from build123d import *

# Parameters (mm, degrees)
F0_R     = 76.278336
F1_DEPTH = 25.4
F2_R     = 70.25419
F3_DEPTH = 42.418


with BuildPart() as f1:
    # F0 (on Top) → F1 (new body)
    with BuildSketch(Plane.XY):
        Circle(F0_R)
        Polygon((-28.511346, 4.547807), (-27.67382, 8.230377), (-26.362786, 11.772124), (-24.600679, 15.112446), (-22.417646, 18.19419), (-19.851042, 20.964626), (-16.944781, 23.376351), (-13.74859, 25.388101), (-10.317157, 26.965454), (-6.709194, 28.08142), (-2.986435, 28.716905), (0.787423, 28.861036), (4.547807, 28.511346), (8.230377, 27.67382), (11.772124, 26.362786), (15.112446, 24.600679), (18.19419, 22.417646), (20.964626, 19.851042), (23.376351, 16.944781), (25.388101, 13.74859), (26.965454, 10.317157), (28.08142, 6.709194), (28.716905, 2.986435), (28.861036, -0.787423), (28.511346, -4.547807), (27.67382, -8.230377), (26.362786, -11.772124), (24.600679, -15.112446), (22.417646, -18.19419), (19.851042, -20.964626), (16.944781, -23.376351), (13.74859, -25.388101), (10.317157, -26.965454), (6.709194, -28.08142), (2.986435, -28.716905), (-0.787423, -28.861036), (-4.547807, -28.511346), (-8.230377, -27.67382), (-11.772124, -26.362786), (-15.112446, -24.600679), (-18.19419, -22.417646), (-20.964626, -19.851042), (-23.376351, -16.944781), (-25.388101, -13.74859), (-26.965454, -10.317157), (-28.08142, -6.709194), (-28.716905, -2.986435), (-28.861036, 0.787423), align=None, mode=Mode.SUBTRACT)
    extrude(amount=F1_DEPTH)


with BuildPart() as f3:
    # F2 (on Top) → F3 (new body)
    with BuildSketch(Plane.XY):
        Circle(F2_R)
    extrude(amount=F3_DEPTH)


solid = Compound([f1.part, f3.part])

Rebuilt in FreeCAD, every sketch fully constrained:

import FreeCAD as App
import Part
import Sketcher
from FreeCAD import Vector
Q = App.Units.Quantity

doc = App.newDocument("Part")
body = doc.addObject("PartDesign::Body", "Body")

# Sketch on XY plane
sketch1 = body.newObject("Sketcher::SketchObject", "Sketch")
sketch1.AttachmentSupport = (doc.getObject("XY_Plane"), [""])
sketch1.MapMode = "FlatFace"
sketch1.addGeometry(Part.Circle(Vector(0, 0, 0), Vector(0, 0, 1), 76.278336), False)
sketch1.addGeometry(Part.LineSegment(Vector(-28.861036, 0.787423, 0), Vector(-28.511346, 4.547807, 0)), False)
sketch1.addGeometry(Part.LineSegment(Vector(-28.511346, 4.547807, 0), Vector(-27.67382, 8.230377, 0)), False)
sketch1.addGeometry(Part.LineSegment(Vector(-27.67382, 8.230377, 0), Vector(-26.362786, 11.772124, 0)), False)
sketch1.addGeometry(Part.LineSegment(Vector(-26.362786, 11.772124, 0), Vector(-24.600679, 15.112446, 0)), False)
sketch1.addGeometry(Part.LineSegment(Vector(-24.600679, 15.112446, 0), Vector(-22.417646, 18.19419, 0)), False)
sketch1.addGeometry(Part.LineSegment(Vector(-22.417646, 18.19419, 0), Vector(-19.851042, 20.964626, 0)), False)
sketch1.addGeometry(Part.LineSegment(Vector(-19.851042, 20.964626, 0), Vector(-16.944781, 23.376351, 0)), False)
sketch1.addGeometry(Part.LineSegment(Vector(-16.944781, 23.376351, 0), Vector(-13.74859, 25.388101, 0)), False)
sketch1.addGeometry(Part.LineSegment(Vector(-13.74859, 25.388101, 0), Vector(-10.317157, 26.965454, 0)), False)
sketch1.addGeometry(Part.LineSegment(Vector(-10.317157, 26.965454, 0), Vector(-6.709194, 28.08142, 0)), False)
sketch1.addGeometry(Part.LineSegment(Vector(-6.709194, 28.08142, 0), Vector(-2.986435, 28.716905, 0)), False)
sketch1.addGeometry(Part.LineSegment(Vector(-2.986435, 28.716905, 0), Vector(0.787423, 28.861036, 0)), False)
sketch1.addGeometry(Part.LineSegment(Vector(0.787423, 28.861036, 0), Vector(4.547807, 28.511346, 0)), False)
sketch1.addGeometry(Part.LineSegment(Vector(4.547807, 28.511346, 0), Vector(8.230377, 27.67382, 0)), False)
sketch1.addGeometry(Part.LineSegment(Vector(8.230377, 27.67382, 0), Vector(11.772124, 26.362786, 0)), False)
sketch1.addGeometry(Part.LineSegment(Vector(11.772124, 26.362786, 0), Vector(15.112446, 24.600679, 0)), False)
sketch1.addGeometry(Part.LineSegment(Vector(15.112446, 24.600679, 0), Vector(18.19419, 22.417646, 0)), False)
sketch1.addGeometry(Part.LineSegment(Vector(18.19419, 22.417646, 0), Vector(20.964626, 19.851042, 0)), False)
sketch1.addGeometry(Part.LineSegment(Vector(20.964626, 19.851042, 0), Vector(23.376351, 16.944781, 0)), False)
sketch1.addGeometry(Part.LineSegment(Vector(23.376351, 16.944781, 0), Vector(25.388101, 13.74859, 0)), False)
sketch1.addGeometry(Part.LineSegment(Vector(25.388101, 13.74859, 0), Vector(26.965454, 10.317157, 0)), False)
sketch1.addGeometry(Part.LineSegment(Vector(26.965454, 10.317157, 0), Vector(28.08142, 6.709194, 0)), False)
sketch1.addGeometry(Part.LineSegment(Vector(28.08142, 6.709194, 0), Vector(28.716905, 2.986435, 0)), False)
sketch1.addGeometry(Part.LineSegment(Vector(28.716905, 2.986435, 0), Vector(28.861036, -0.787423, 0)), False)
sketch1.addGeometry(Part.LineSegment(Vector(28.861036, -0.787423, 0), Vector(28.511346, -4.547807, 0)), False)
sketch1.addGeometry(Part.LineSegment(Vector(28.511346, -4.547807, 0), Vector(27.67382, -8.230377, 0)), False)
sketch1.addGeometry(Part.LineSegment(Vector(27.67382, -8.230377, 0), Vector(26.362786, -11.772124, 0)), False)
sketch1.addGeometry(Part.LineSegment(Vector(26.362786, -11.772124, 0), Vector(24.600679, -15.112446, 0)), False)
sketch1.addGeometry(Part.LineSegment(Vector(24.600679, -15.112446, 0), Vector(22.417646, -18.19419, 0)), False)
sketch1.addGeometry(Part.LineSegment(Vector(22.417646, -18.19419, 0), Vector(19.851042, -20.964626, 0)), False)
sketch1.addGeometry(Part.LineSegment(Vector(19.851042, -20.964626, 0), Vector(16.944781, -23.376351, 0)), False)
sketch1.addGeometry(Part.LineSegment(Vector(16.944781, -23.376351, 0), Vector(13.74859, -25.388101, 0)), False)
sketch1.addGeometry(Part.LineSegment(Vector(13.74859, -25.388101, 0), Vector(10.317157, -26.965454, 0)), False)
sketch1.addGeometry(Part.LineSegment(Vector(10.317157, -26.965454, 0), Vector(6.709194, -28.08142, 0)), False)
sketch1.addGeometry(Part.LineSegment(Vector(6.709194, -28.08142, 0), Vector(2.986435, -28.716905, 0)), False)
sketch1.addGeometry(Part.LineSegment(Vector(2.986435, -28.716905, 0), Vector(-0.787423, -28.861036, 0)), False)
sketch1.addGeometry(Part.LineSegment(Vector(-0.787423, -28.861036, 0), Vector(-4.547807, -28.511346, 0)), False)
sketch1.addGeometry(Part.LineSegment(Vector(-4.547807, -28.511346, 0), Vector(-8.230377, -27.67382, 0)), False)
sketch1.addGeometry(Part.LineSegment(Vector(-8.230377, -27.67382, 0), Vector(-11.772124, -26.362786, 0)), False)
sketch1.addGeometry(Part.LineSegment(Vector(-11.772124, -26.362786, 0), Vector(-15.112446, -24.600679, 0)), False)
sketch1.addGeometry(Part.LineSegment(Vector(-15.112446, -24.600679, 0), Vector(-18.19419, -22.417646, 0)), False)
sketch1.addGeometry(Part.LineSegment(Vector(-18.19419, -22.417646, 0), Vector(-20.964626, -19.851042, 0)), False)
sketch1.addGeometry(Part.LineSegment(Vector(-20.964626, -19.851042, 0), Vector(-23.376351, -16.944781, 0)), False)
sketch1.addGeometry(Part.LineSegment(Vector(-23.376351, -16.944781, 0), Vector(-25.388101, -13.74859, 0)), False)
sketch1.addGeometry(Part.LineSegment(Vector(-25.388101, -13.74859, 0), Vector(-26.965454, -10.317157, 0)), False)
sketch1.addGeometry(Part.LineSegment(Vector(-26.965454, -10.317157, 0), Vector(-28.08142, -6.709194, 0)), False)
sketch1.addGeometry(Part.LineSegment(Vector(-28.08142, -6.709194, 0), Vector(-28.716905, -2.986435, 0)), False)
sketch1.addGeometry(Part.LineSegment(Vector(-28.716905, -2.986435, 0), Vector(-28.861036, 0.787423, 0)), False)
sketch1.addConstraint(Sketcher.Constraint("Coincident", 1, 2, 2, 1))
sketch1.addConstraint(Sketcher.Constraint("Coincident", 2, 2, 3, 1))
sketch1.addConstraint(Sketcher.Constraint("Coincident", 3, 2, 4, 1))
sketch1.addConstraint(Sketcher.Constraint("Coincident", 4, 2, 5, 1))
sketch1.addConstraint(Sketcher.Constraint("Coincident", 5, 2, 6, 1))
sketch1.addConstraint(Sketcher.Constraint("Coincident", 6, 2, 7, 1))
sketch1.addConstraint(Sketcher.Constraint("Coincident", 7, 2, 8, 1))
sketch1.addConstraint(Sketcher.Constraint("Coincident", 8, 2, 9, 1))
sketch1.addConstraint(Sketcher.Constraint("Coincident", 9, 2, 10, 1))
sketch1.addConstraint(Sketcher.Constraint("Coincident", 10, 2, 11, 1))
sketch1.addConstraint(Sketcher.Constraint("Coincident", 11, 2, 12, 1))
sketch1.addConstraint(Sketcher.Constraint("Coincident", 12, 2, 13, 1))
sketch1.addConstraint(Sketcher.Constraint("Coincident", 13, 2, 14, 1))
sketch1.addConstraint(Sketcher.Constraint("Coincident", 14, 2, 15, 1))
sketch1.addConstraint(Sketcher.Constraint("Coincident", 15, 2, 16, 1))
sketch1.addConstraint(Sketcher.Constraint("Coincident", 16, 2, 17, 1))
sketch1.addConstraint(Sketcher.Constraint("Coincident", 17, 2, 18, 1))
sketch1.addConstraint(Sketcher.Constraint("Coincident", 18, 2, 19, 1))
sketch1.addConstraint(Sketcher.Constraint("Coincident", 19, 2, 20, 1))
sketch1.addConstraint(Sketcher.Constraint("Coincident", 20, 2, 21, 1))
sketch1.addConstraint(Sketcher.Constraint("Coincident", 21, 2, 22, 1))
sketch1.addConstraint(Sketcher.Constraint("Coincident", 22, 2, 23, 1))
sketch1.addConstraint(Sketcher.Constraint("Coincident", 23, 2, 24, 1))
sketch1.addConstraint(Sketcher.Constraint("Coincident", 24, 2, 25, 1))
sketch1.addConstraint(Sketcher.Constraint("Coincident", 25, 2, 26, 1))
sketch1.addConstraint(Sketcher.Constraint("Coincident", 26, 2, 27, 1))
sketch1.addConstraint(Sketcher.Constraint("Coincident", 27, 2, 28, 1))
sketch1.addConstraint(Sketcher.Constraint("Coincident", 28, 2, 29, 1))
sketch1.addConstraint(Sketcher.Constraint("Coincident", 29, 2, 30, 1))
sketch1.addConstraint(Sketcher.Constraint("Coincident", 30, 2, 31, 1))
sketch1.addConstraint(Sketcher.Constraint("Coincident", 31, 2, 32, 1))
sketch1.addConstraint(Sketcher.Constraint("Coincident", 32, 2, 33, 1))
sketch1.addConstraint(Sketcher.Constraint("Coincident", 33, 2, 34, 1))
sketch1.addConstraint(Sketcher.Constraint("Coincident", 34, 2, 35, 1))
sketch1.addConstraint(Sketcher.Constraint("Coincident", 35, 2, 36, 1))
sketch1.addConstraint(Sketcher.Constraint("Coincident", 36, 2, 37, 1))
sketch1.addConstraint(Sketcher.Constraint("Coincident", 37, 2, 38, 1))
sketch1.addConstraint(Sketcher.Constraint("Coincident", 38, 2, 39, 1))
sketch1.addConstraint(Sketcher.Constraint("Coincident", 39, 2, 40, 1))
sketch1.addConstraint(Sketcher.Constraint("Coincident", 40, 2, 41, 1))
sketch1.addConstraint(Sketcher.Constraint("Coincident", 41, 2, 42, 1))
sketch1.addConstraint(Sketcher.Constraint("Coincident", 42, 2, 43, 1))
sketch1.addConstraint(Sketcher.Constraint("Coincident", 43, 2, 44, 1))
sketch1.addConstraint(Sketcher.Constraint("Coincident", 44, 2, 45, 1))
sketch1.addConstraint(Sketcher.Constraint("Coincident", 45, 2, 46, 1))
sketch1.addConstraint(Sketcher.Constraint("Coincident", 46, 2, 47, 1))
sketch1.addConstraint(Sketcher.Constraint("Coincident", 47, 2, 48, 1))
sketch1.addConstraint(Sketcher.Constraint("Coincident", 48, 2, 1, 1))
sketch1.addConstraint(Sketcher.Constraint("Coincident", 0, 3, -1, 1))
sketch1.addConstraint(Sketcher.Constraint("Diameter", 0, 152.556672))
sketch1.addConstraint(Sketcher.Constraint("DistanceY", -1, 1, 8, 2, 25.388101))
sketch1.addConstraint(Sketcher.Constraint("DistanceX", -1, 1, 20, 2, 25.388101))
sketch1.addConstraint(Sketcher.Constraint("DistanceY", 32, 2, -1, 1, 25.388101))
sketch1.addConstraint(Sketcher.Constraint("DistanceX", 44, 2, -1, 1, 25.388101))
sketch1.addConstraint(Sketcher.Constraint("DistanceX", 1, 2, 5, 2, 6.0937))
sketch1.addConstraint(Sketcher.Constraint("DistanceY", 3, 2, 6, 2, 9.192502))
sketch1.addConstraint(Sketcher.Constraint("DistanceX", 4, 2, 7, 2, 7.655898))
sketch1.addConstraint(Sketcher.Constraint("DistanceX", 10, 2, 13, 2, 11.257001))
sketch1.addConstraint(Sketcher.Constraint("DistanceY", 14, 2, 10, 2, 0.4076))
sketch1.addConstraint(Sketcher.Constraint("DistanceX", 12, 2, 15, 2, 10.984701))
sketch1.addConstraint(Sketcher.Constraint("DistanceY", 17, 2, 13, 2, 6.0937))
sketch1.addConstraint(Sketcher.Constraint("DistanceX", 15, 2, 18, 2, 9.192502))
sketch1.addConstraint(Sketcher.Constraint("DistanceY", 19, 2, 16, 2, 7.655898))
sketch1.addConstraint(Sketcher.Constraint("DistanceY", 25, 2, 22, 2, 11.257001))
sketch1.addConstraint(Sketcher.Constraint("DistanceX", 26, 2, 22, 2, 0.4076))
sketch1.addConstraint(Sketcher.Constraint("DistanceY", 27, 2, 24, 2, 10.984701))
sketch1.addConstraint(Sketcher.Constraint("DistanceX", 29, 2, 25, 2, 6.0937))
sketch1.addConstraint(Sketcher.Constraint("DistanceY", 30, 2, 27, 2, 9.192502))
sketch1.addConstraint(Sketcher.Constraint("DistanceX", 31, 2, 28, 2, 7.655898))
sketch1.addConstraint(Sketcher.Constraint("DistanceX", 37, 2, 34, 2, 11.257001))
sketch1.addConstraint(Sketcher.Constraint("DistanceY", 34, 2, 38, 2, 0.4076))
sketch1.addConstraint(Sketcher.Constraint("DistanceX", 39, 2, 36, 2, 10.984701))
sketch1.addConstraint(Sketcher.Constraint("DistanceY", 37, 2, 41, 2, 6.0937))
sketch1.addConstraint(Sketcher.Constraint("DistanceX", 42, 2, 39, 2, 9.192502))
sketch1.addConstraint(Sketcher.Constraint("DistanceY", 40, 2, 43, 2, 7.655898))
sketch1.addConstraint(Sketcher.Constraint("DistanceY", 46, 2, 1, 2, 11.257001))
sketch1.addConstraint(Sketcher.Constraint("DistanceX", 46, 2, 2, 2, 0.4076))
sketch1.addConstraint(Sketcher.Constraint("DistanceY", 48, 2, 3, 2, 10.984701))
sketch1.addConstraint(Sketcher.Constraint("Distance", 1, 3.776608))
sketch1.addConstraint(Sketcher.Constraint("Distance", 2, 3.776608))
sketch1.addConstraint(Sketcher.Constraint("Distance", 3, 3.77661))
sketch1.addConstraint(Sketcher.Constraint("Distance", 4, 3.776609))
sketch1.addConstraint(Sketcher.Constraint("Distance", 5, 3.776609))
sketch1.addConstraint(Sketcher.Constraint("Distance", 6, 3.776608))
sketch1.addConstraint(Sketcher.Constraint("Distance", 7, 3.776608))
sketch1.addConstraint(Sketcher.Constraint("Distance", 8, 3.776609))
sketch1.addConstraint(Sketcher.Constraint("Distance", 9, 3.776609))
sketch1.addConstraint(Sketcher.Constraint("Distance", 10, 3.776609))
sketch1.addConstraint(Sketcher.Constraint("Distance", 11, 3.776609))
sketch1.addConstraint(Sketcher.Constraint("Distance", 12, 3.776609))
sketch1.addConstraint(Sketcher.Constraint("Distance", 13, 3.776608))
sketch1.addConstraint(Sketcher.Constraint("Distance", 14, 3.776608))
sketch1.addConstraint(Sketcher.Constraint("Distance", 15, 3.77661))
sketch1.addConstraint(Sketcher.Constraint("Distance", 16, 3.776609))
sketch1.addConstraint(Sketcher.Constraint("Distance", 17, 3.776609))
sketch1.addConstraint(Sketcher.Constraint("Distance", 18, 3.776608))
sketch1.addConstraint(Sketcher.Constraint("Distance", 19, 3.776608))
sketch1.addConstraint(Sketcher.Constraint("Distance", 20, 3.776609))
sketch1.addConstraint(Sketcher.Constraint("Distance", 21, 3.776609))
sketch1.addConstraint(Sketcher.Constraint("Distance", 22, 3.776609))
sketch1.addConstraint(Sketcher.Constraint("Distance", 23, 3.776609))
sketch1.addConstraint(Sketcher.Constraint("Distance", 24, 3.776609))
sketch1.addConstraint(Sketcher.Constraint("Distance", 25, 3.776608))
sketch1.addConstraint(Sketcher.Constraint("Distance", 26, 3.776608))
sketch1.addConstraint(Sketcher.Constraint("Distance", 27, 3.77661))
sketch1.addConstraint(Sketcher.Constraint("Distance", 28, 3.776609))
sketch1.addConstraint(Sketcher.Constraint("Distance", 29, 3.776609))
sketch1.addConstraint(Sketcher.Constraint("Distance", 30, 3.776608))
sketch1.addConstraint(Sketcher.Constraint("Distance", 31, 3.776608))
sketch1.addConstraint(Sketcher.Constraint("Distance", 32, 3.776609))
sketch1.addConstraint(Sketcher.Constraint("Distance", 33, 3.776609))
sketch1.addConstraint(Sketcher.Constraint("Distance", 34, 3.776609))
sketch1.addConstraint(Sketcher.Constraint("Distance", 35, 3.776609))
sketch1.addConstraint(Sketcher.Constraint("Distance", 36, 3.776609))
sketch1.addConstraint(Sketcher.Constraint("Distance", 37, 3.776608))
sketch1.addConstraint(Sketcher.Constraint("Distance", 38, 3.776608))
sketch1.addConstraint(Sketcher.Constraint("Distance", 39, 3.77661))
sketch1.addConstraint(Sketcher.Constraint("Distance", 40, 3.776609))
sketch1.addConstraint(Sketcher.Constraint("Distance", 41, 3.776609))
sketch1.addConstraint(Sketcher.Constraint("Distance", 42, 3.776608))
sketch1.addConstraint(Sketcher.Constraint("Distance", 43, 3.776608))
sketch1.addConstraint(Sketcher.Constraint("Distance", 44, 3.776609))
sketch1.addConstraint(Sketcher.Constraint("Distance", 45, 3.776609))
sketch1.addConstraint(Sketcher.Constraint("Distance", 46, 3.776609))
sketch1.addConstraint(Sketcher.Constraint("Distance", 47, 3.776609))
sketch1.addConstraint(Sketcher.Constraint("Distance", 48, 3.776609))
sketch1.addConstraint(Sketcher.Constraint("DistanceX", 2, 2, -1, 1, 27.67382))
sketch1.addConstraint(Sketcher.Constraint("DistanceX", 4, 2, -1, 1, 24.600679))
sketch1.addConstraint(Sketcher.Constraint("DistanceY", -1, 1, 5, 2, 18.19419))
sketch1.addConstraint(Sketcher.Constraint("DistanceX", 6, 2, -1, 1, 19.851042))
sketch1.addConstraint(Sketcher.Constraint("DistanceY", -1, 1, 7, 2, 23.376351))
sketch1.addConstraint(Sketcher.Constraint("DistanceY", -1, 1, 10, 2, 28.08142))
sketch1.addConstraint(Sketcher.Constraint("DistanceY", -1, 1, 16, 2, 24.600679))
sketch1.addConstraint(Sketcher.Constraint("DistanceX", -1, 1, 17, 2, 18.19419))
sketch1.addConstraint(Sketcher.Constraint("DistanceY", -1, 1, 18, 2, 19.851042))
sketch1.addConstraint(Sketcher.Constraint("DistanceX", -1, 1, 19, 2, 23.376351))
sketch1.addConstraint(Sketcher.Constraint("DistanceX", -1, 1, 22, 2, 28.08142))
sketch1.addConstraint(Sketcher.Constraint("DistanceX", -1, 1, 28, 2, 24.600679))
sketch1.addConstraint(Sketcher.Constraint("DistanceY", 29, 2, -1, 1, 18.19419))
sketch1.addConstraint(Sketcher.Constraint("DistanceX", -1, 1, 30, 2, 19.851042))
sketch1.addConstraint(Sketcher.Constraint("DistanceY", 31, 2, -1, 1, 23.376351))
sketch1.addConstraint(Sketcher.Constraint("DistanceY", 34, 2, -1, 1, 28.08142))
sketch1.addConstraint(Sketcher.Constraint("DistanceY", 40, 2, -1, 1, 24.600679))
sketch1.addConstraint(Sketcher.Constraint("DistanceX", 41, 2, -1, 1, 18.19419))
sketch1.addConstraint(Sketcher.Constraint("DistanceY", 42, 2, -1, 1, 19.851042))
sketch1.addConstraint(Sketcher.Constraint("DistanceX", 43, 2, -1, 1, 23.376351))
pad1 = body.newObject("PartDesign::Pad", "Pad")
pad1.Profile = sketch1
pad1.Length = Q("1 in")
body2 = doc.addObject("PartDesign::Body", "Body001")

# Sketch on XY plane
sketch2 = body2.newObject("Sketcher::SketchObject", "Sketch001")
sketch2.AttachmentSupport = (doc.getObject("XY_Plane001"), [""])
sketch2.MapMode = "FlatFace"
sketch2.addGeometry(Part.Circle(Vector(0, 0, 0), Vector(0, 0, 1), 70.25419), False)
sketch2.addConstraint(Sketcher.Constraint("Coincident", 0, 3, -1, 1))
sketch2.addConstraint(Sketcher.Constraint("Diameter", 0, 140.50838))
pad2 = body2.newObject("PartDesign::Pad", "Pad001")
pad2.Profile = sketch2
pad2.Length = Q("1.67 in")

doc.recompute()
